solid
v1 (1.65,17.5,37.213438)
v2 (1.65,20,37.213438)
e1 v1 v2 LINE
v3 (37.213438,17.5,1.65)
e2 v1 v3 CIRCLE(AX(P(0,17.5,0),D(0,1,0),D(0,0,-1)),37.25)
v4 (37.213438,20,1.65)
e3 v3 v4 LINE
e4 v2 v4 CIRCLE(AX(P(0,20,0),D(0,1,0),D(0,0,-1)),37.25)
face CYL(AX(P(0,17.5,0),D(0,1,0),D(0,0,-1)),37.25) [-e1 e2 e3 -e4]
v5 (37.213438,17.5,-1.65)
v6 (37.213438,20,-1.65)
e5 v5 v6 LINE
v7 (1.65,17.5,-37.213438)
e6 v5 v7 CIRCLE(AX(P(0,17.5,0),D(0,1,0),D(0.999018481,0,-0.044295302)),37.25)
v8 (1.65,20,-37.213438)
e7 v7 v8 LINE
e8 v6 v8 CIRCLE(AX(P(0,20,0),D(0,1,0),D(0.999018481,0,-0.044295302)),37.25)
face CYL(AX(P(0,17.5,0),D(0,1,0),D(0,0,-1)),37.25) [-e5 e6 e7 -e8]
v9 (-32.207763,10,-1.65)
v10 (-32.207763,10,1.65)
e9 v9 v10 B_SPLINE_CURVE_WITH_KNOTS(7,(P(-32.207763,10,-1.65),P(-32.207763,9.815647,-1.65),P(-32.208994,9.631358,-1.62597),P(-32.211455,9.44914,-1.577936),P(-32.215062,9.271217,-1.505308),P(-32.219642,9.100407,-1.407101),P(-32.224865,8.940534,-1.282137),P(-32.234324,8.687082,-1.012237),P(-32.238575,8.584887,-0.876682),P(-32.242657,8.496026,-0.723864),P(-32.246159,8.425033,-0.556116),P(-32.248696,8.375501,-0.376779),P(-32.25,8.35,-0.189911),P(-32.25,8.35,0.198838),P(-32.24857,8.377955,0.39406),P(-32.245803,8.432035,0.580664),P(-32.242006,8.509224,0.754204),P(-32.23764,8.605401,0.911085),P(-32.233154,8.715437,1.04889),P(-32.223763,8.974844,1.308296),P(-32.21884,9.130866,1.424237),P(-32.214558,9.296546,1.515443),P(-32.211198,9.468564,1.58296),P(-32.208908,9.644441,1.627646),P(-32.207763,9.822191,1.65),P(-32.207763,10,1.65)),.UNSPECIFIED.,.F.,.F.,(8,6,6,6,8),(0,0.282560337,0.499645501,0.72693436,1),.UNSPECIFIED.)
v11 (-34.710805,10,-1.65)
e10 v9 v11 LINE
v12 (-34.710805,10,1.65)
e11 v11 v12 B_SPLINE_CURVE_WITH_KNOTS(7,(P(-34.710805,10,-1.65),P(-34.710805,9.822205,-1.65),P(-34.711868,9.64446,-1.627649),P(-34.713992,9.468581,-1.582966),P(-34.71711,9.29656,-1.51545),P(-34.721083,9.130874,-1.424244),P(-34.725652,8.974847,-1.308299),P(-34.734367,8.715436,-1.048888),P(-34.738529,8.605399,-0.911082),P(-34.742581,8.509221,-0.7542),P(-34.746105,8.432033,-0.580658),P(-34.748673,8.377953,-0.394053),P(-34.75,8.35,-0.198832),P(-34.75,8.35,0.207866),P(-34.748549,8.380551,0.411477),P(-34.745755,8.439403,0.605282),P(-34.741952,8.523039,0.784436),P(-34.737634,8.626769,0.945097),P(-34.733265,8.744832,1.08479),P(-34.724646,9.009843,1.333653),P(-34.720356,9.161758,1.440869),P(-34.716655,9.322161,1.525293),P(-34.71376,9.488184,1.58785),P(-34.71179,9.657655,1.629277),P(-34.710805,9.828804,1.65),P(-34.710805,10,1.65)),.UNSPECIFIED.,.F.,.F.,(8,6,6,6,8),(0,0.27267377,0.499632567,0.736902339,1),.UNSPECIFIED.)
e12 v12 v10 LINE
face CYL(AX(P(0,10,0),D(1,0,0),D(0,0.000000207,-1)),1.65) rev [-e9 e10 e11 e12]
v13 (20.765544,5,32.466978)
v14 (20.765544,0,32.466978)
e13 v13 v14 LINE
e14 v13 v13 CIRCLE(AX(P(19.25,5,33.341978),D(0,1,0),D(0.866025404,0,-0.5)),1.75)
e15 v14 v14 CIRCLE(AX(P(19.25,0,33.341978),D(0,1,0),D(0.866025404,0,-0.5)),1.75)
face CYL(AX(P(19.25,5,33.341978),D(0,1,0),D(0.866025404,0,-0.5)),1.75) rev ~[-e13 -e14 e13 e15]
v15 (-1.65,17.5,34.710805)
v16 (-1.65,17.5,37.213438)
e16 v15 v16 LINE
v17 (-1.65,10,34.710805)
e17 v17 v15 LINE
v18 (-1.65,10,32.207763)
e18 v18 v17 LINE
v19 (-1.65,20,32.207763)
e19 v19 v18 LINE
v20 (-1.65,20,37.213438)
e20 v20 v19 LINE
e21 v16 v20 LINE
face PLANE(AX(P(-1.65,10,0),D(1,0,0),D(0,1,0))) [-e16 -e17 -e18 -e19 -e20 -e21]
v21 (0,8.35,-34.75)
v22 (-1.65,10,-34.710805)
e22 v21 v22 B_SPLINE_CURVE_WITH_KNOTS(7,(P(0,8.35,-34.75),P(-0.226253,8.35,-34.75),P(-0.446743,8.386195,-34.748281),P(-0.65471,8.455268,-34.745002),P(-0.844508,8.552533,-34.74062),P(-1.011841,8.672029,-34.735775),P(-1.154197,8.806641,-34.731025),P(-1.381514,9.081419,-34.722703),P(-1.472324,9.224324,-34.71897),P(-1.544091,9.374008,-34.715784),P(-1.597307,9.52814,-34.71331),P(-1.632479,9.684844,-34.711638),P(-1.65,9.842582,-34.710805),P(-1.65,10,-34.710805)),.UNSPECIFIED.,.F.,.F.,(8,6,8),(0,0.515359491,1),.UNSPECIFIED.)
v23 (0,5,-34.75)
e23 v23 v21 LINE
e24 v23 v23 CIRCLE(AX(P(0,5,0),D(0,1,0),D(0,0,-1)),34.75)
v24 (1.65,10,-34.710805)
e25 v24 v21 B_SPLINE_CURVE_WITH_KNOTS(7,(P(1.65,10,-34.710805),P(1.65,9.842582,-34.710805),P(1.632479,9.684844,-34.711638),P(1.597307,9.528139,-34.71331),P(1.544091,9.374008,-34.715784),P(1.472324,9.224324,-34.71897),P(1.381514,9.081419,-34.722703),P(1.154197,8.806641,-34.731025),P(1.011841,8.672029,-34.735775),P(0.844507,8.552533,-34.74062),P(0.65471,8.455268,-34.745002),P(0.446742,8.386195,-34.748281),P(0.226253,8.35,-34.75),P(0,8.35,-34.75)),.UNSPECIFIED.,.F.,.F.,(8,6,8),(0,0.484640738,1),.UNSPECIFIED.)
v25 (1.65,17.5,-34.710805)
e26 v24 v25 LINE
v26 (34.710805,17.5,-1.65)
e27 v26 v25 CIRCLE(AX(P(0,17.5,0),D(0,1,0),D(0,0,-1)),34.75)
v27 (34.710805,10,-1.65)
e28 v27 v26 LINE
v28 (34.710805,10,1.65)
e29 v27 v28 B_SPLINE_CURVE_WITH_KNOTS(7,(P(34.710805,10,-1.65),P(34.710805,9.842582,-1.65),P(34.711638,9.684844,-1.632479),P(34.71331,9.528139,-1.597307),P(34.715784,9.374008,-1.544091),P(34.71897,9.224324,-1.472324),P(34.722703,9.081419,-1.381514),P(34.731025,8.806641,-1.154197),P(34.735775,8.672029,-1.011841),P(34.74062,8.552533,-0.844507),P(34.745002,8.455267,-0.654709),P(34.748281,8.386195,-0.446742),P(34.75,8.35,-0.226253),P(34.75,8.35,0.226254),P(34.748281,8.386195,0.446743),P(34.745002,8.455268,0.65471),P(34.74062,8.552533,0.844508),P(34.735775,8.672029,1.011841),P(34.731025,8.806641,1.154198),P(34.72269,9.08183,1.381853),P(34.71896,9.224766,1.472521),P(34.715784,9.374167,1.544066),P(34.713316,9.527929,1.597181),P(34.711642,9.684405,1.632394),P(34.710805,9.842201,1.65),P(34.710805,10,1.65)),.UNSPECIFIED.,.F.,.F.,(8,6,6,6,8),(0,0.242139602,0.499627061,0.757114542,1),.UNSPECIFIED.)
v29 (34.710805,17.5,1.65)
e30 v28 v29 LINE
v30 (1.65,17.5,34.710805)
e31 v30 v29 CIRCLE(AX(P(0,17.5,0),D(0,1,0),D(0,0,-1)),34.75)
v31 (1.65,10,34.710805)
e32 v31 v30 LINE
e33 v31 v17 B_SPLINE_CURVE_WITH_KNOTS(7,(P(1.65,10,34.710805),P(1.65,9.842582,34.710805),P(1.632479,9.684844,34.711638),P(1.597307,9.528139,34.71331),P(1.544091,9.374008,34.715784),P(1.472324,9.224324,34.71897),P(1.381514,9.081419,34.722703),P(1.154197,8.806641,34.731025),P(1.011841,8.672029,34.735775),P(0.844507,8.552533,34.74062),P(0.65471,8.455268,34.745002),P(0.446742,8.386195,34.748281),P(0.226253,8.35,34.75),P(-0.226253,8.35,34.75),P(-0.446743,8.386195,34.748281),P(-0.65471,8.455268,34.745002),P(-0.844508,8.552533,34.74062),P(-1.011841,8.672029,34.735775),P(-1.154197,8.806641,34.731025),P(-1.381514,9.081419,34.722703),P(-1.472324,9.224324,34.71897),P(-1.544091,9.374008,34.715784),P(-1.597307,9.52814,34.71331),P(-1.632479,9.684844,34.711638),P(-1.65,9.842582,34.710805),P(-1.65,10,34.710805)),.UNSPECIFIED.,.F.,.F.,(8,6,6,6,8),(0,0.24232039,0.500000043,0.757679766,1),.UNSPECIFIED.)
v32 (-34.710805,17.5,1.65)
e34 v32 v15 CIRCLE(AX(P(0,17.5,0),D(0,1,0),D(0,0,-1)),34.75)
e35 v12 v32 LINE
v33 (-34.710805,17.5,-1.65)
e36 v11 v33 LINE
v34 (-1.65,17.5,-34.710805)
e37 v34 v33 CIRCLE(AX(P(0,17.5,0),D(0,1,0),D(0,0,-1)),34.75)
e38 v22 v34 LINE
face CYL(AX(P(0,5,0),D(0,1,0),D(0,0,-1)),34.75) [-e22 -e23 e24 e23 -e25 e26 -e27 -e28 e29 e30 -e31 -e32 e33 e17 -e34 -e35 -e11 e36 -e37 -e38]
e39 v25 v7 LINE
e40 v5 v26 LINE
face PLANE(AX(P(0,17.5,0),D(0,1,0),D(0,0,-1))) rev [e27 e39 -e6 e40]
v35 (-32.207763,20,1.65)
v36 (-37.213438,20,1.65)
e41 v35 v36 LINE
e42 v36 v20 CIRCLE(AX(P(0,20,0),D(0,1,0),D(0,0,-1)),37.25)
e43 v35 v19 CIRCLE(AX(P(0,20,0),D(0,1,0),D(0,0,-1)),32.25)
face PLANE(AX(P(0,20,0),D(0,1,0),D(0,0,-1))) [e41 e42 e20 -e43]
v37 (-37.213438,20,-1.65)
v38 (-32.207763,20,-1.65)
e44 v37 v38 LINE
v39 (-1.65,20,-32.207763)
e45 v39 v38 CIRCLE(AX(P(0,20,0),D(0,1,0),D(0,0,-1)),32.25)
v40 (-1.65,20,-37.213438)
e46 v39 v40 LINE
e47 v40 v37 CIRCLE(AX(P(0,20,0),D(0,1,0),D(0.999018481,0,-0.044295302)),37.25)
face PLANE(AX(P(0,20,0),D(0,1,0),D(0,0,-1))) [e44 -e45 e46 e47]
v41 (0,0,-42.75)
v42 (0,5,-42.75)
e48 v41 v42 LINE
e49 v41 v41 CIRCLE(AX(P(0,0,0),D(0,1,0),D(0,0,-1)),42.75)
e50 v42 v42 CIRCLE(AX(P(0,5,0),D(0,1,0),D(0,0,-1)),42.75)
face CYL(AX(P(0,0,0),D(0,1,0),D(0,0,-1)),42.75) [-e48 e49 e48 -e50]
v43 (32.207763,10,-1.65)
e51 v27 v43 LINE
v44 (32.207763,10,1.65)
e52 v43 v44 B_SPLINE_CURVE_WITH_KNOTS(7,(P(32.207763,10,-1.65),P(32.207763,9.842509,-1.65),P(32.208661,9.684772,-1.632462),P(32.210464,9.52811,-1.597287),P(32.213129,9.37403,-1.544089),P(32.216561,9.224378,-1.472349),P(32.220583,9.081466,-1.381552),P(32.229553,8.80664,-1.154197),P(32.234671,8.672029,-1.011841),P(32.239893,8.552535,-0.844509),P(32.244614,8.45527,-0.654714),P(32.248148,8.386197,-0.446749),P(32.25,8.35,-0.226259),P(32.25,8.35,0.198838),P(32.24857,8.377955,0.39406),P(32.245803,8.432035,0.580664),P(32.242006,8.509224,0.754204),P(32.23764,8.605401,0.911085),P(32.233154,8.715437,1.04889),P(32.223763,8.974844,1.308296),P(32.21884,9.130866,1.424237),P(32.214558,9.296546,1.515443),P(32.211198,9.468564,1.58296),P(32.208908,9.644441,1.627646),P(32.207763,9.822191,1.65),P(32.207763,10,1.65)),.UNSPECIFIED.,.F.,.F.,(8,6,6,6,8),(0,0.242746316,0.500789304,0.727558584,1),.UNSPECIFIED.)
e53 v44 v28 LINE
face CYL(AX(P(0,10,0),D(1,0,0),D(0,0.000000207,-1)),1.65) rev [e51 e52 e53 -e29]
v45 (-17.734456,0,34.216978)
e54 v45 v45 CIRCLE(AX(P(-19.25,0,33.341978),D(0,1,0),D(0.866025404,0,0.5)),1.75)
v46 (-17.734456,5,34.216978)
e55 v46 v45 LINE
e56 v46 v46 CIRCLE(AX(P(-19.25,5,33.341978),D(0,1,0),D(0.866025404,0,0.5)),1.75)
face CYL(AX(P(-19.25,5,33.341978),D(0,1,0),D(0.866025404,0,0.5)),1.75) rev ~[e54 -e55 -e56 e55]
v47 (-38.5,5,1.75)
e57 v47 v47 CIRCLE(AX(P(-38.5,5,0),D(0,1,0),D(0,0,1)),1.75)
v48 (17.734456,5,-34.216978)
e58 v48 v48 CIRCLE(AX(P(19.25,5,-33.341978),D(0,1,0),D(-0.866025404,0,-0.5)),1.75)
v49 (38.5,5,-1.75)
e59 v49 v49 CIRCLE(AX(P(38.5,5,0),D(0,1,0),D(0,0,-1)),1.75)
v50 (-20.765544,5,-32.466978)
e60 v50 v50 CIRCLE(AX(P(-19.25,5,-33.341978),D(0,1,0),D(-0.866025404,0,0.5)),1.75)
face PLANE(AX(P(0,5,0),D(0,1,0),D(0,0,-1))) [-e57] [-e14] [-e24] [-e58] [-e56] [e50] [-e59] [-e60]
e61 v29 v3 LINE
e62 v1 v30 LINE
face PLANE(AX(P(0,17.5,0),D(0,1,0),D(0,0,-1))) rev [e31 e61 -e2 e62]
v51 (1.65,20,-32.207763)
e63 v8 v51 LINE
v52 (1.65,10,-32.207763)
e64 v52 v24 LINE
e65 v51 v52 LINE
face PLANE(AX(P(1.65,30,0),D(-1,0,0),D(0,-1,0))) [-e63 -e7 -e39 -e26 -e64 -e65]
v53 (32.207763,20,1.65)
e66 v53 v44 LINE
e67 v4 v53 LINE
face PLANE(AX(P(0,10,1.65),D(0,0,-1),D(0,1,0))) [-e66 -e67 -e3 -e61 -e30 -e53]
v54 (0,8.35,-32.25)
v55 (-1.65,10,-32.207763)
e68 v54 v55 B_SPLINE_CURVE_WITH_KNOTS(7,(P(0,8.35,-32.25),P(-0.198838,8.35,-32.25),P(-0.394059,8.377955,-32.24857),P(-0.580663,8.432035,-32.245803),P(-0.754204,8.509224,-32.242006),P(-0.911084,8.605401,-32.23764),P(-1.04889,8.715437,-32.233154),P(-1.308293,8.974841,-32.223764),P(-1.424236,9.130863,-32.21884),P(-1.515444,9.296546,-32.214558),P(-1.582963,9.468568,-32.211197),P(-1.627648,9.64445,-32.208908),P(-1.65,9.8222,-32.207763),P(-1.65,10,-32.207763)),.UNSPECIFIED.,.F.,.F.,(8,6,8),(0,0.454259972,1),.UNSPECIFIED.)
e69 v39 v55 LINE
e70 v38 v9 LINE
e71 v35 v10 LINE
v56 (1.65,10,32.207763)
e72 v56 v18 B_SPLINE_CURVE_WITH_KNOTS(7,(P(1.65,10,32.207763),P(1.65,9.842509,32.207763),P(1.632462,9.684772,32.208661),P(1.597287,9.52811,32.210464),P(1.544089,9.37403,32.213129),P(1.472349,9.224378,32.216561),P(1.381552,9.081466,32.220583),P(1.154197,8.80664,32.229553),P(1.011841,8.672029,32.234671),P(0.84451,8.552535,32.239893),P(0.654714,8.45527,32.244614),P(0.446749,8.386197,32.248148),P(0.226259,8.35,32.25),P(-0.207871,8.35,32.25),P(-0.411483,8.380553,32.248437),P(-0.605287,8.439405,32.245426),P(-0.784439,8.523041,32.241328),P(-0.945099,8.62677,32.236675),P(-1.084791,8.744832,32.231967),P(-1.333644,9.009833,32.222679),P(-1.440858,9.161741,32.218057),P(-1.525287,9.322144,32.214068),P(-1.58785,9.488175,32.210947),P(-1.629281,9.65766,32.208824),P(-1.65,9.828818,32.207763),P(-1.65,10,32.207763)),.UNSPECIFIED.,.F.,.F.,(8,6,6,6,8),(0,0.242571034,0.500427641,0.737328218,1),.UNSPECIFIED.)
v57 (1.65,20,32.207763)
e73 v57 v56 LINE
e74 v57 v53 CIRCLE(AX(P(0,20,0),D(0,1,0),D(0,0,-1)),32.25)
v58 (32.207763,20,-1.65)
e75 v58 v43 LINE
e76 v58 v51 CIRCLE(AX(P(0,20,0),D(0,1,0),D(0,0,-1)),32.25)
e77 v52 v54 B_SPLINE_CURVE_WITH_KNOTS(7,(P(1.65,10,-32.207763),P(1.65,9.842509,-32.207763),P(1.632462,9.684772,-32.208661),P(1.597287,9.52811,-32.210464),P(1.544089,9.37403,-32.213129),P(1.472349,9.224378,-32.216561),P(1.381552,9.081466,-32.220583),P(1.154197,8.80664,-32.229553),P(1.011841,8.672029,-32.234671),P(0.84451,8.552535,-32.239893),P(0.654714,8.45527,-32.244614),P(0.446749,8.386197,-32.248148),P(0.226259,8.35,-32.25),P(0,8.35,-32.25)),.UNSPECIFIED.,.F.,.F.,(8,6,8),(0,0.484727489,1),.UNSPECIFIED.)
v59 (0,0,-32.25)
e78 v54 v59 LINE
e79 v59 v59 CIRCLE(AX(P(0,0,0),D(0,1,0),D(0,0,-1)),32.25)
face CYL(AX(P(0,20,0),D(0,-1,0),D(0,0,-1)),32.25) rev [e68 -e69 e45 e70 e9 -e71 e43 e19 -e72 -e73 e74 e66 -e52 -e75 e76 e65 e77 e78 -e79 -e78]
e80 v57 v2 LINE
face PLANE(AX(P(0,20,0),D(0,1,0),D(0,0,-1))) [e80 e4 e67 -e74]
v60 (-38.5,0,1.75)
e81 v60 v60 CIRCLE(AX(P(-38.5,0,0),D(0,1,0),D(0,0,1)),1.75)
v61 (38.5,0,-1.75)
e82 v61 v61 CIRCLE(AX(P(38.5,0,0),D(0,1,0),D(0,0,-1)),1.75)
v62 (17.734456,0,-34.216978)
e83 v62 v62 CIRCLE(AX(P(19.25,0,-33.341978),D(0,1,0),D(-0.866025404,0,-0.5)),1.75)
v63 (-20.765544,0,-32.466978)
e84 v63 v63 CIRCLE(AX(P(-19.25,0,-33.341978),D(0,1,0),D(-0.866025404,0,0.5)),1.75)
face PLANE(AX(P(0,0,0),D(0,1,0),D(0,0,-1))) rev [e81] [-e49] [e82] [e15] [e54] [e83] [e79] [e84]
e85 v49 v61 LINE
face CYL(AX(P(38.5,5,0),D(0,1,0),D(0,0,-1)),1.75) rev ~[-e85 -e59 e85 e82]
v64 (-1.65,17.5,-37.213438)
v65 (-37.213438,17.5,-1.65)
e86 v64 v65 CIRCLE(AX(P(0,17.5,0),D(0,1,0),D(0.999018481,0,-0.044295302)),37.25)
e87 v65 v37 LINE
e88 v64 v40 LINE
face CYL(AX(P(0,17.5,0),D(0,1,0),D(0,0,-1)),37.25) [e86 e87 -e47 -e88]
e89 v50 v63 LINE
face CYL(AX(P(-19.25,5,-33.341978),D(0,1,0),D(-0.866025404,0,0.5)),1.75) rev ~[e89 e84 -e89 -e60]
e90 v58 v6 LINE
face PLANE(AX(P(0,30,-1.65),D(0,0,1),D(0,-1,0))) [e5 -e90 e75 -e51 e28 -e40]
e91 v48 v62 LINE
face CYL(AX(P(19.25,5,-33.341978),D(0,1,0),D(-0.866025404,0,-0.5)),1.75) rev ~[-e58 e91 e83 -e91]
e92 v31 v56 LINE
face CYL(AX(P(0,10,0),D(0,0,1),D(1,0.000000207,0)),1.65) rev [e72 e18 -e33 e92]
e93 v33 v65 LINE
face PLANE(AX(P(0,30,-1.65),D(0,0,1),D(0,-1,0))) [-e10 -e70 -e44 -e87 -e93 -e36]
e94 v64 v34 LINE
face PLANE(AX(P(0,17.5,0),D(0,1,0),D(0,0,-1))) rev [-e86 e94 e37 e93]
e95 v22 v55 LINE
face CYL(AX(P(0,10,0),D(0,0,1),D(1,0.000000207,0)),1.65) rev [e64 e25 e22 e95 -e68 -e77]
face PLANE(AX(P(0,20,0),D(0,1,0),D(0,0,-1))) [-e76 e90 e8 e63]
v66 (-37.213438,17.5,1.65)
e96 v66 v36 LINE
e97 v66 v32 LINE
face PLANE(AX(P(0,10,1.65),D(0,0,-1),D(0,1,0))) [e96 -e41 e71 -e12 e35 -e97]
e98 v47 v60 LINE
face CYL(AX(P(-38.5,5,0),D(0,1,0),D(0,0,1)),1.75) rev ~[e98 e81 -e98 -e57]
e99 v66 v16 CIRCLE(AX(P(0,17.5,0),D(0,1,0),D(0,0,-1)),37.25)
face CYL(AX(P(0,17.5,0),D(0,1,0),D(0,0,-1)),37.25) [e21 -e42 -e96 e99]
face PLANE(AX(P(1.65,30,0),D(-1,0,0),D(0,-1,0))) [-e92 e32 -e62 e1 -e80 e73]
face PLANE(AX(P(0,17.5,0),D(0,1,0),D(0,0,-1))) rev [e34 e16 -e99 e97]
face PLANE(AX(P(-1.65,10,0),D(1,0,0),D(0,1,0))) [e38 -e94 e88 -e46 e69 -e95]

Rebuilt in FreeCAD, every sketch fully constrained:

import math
import FreeCAD as App
import Part
import Sketcher

V = App.Vector

doc = App.newDocument("Part")
body = doc.addObject("PartDesign::Body", "Body")

sketch1 = body.newObject("Sketcher::SketchObject", "Sketch")
sketch1.AttachmentSupport = (doc.getObject("XY_Plane"), [""])
sketch1.MapMode = "FlatFace"
sketch1.addGeometry([
    Part.LineSegment(V(-32.2, 0, 0), V(-32.2, 20, 0)),
    Part.LineSegment(V(-32.2, 20, 0), V(-37.2, 20, 0)),
    Part.LineSegment(V(-37.2, 20, 0), V(-37.2, 17.5, 0)),
    Part.LineSegment(V(-37.2, 17.5, 0), V(-34.8, 17.5, 0)),
    Part.LineSegment(V(-34.8, 17.5, 0), V(-34.8, 5, 0)),
    Part.LineSegment(V(-34.8, 5, 0), V(-42.8, 5, 0)),
    Part.LineSegment(V(-42.8, 5, 0), V(-42.8, 0, 0)),
    Part.LineSegment(V(-42.8, 0, 0), V(-32.2, 0, 0)),
], False)
sketch1.addConstraint([
    Sketcher.Constraint("Coincident", 0, 2, 1, 1),
    Sketcher.Constraint("Coincident", 1, 2, 2, 1),
    Sketcher.Constraint("Coincident", 2, 2, 3, 1),
    Sketcher.Constraint("Coincident", 3, 2, 4, 1),
    Sketcher.Constraint("Coincident", 4, 2, 5, 1),
    Sketcher.Constraint("Coincident", 5, 2, 6, 1),
    Sketcher.Constraint("Coincident", 6, 2, 7, 1),
    Sketcher.Constraint("Coincident", 7, 2, 0, 1),
    Sketcher.Constraint("Vertical", 0),
    Sketcher.Constraint("Horizontal", 1),
    Sketcher.Constraint("Vertical", 2),
    Sketcher.Constraint("Horizontal", 3),
    Sketcher.Constraint("Vertical", 4),
    Sketcher.Constraint("Horizontal", 5),
    Sketcher.Constraint("Vertical", 6),
    Sketcher.Constraint("Horizontal", 7),
    Sketcher.Constraint("PointOnObject", 6, 2, -1),
    Sketcher.Constraint("Equal", 3, 2),
    Sketcher.Constraint("Equal", 1, 6),
    Sketcher.Constraint("DistanceX", 1, 2, 1, 1, 5.0),
    Sketcher.Constraint("DistanceX", 5, 2, 5, 1, 8.0),
    Sketcher.Constraint("DistanceY", 0, 1, 0, 2, 20.0),
    Sketcher.Constraint("DistanceX", 3, 1, 3, 2, 2.5),
    Sketcher.Constraint("DistanceX", 0, 2, -1, 1, 32.25),
])
revolution = body.newObject("PartDesign::Revolution", "Revolution")
revolution.Profile = sketch1
revolution.ReferenceAxis = (sketch1, ["V_Axis"])
revolution.Angle = 360

sketch2 = body.newObject("Sketcher::SketchObject", "Sketch001")
sketch2.AttachmentSupport = (doc.getObject("YZ_Plane"), [""])
sketch2.MapMode = "FlatFace"
sketch2.addGeometry([
    Part.LineSegment(V(30, -1.6, 0), V(30, 1.6, 0)),
    Part.LineSegment(V(30, 1.6, 0), V(10, 1.6, 0)),
    Part.ArcOfCircle(Part.Circle(V(10, 0, 0), V(0, 0, 1), 1.6), math.radians(90), math.radians(270)),
    Part.LineSegment(V(10, -1.6, 0), V(30, -1.6, 0)),
], False)
sketch2.addConstraint([
    Sketcher.Constraint("Coincident", 0, 2, 1, 1),
    Sketcher.Constraint("Tangent", 1, 2, 2, 1),
    Sketcher.Constraint("Tangent", 2, 2, 3, 1),
    Sketcher.Constraint("Coincident", 3, 2, 0, 1),
    Sketcher.Constraint("Vertical", 0),
    Sketcher.Constraint("Horizontal", 1),
    Sketcher.Constraint("Horizontal", 3),
    Sketcher.Constraint("PointOnObject", 2, 3, -1),
    Sketcher.Constraint("DistanceX", 1, 2, 1, 1, 19.999999),
    Sketcher.Constraint("Radius", 2, 1.65),
    Sketcher.Constraint("DistanceX", -1, 1, 2, 3, 10.0),
])
pocket1 = body.newObject("PartDesign::Pocket", "Pocket")
pocket1.Profile = sketch2
pocket1.Length = 129.359727
pocket1.Midplane = True
doc.recompute()

polarpattern = body.newObject("PartDesign::PolarPattern", "PolarPattern")
polarpattern.Originals = [pocket1]
polarpattern.Axis = (doc.getObject("Y_Axis"), [""])
polarpattern.Angle = 360
polarpattern.Occurrences = 4
body.Tip = polarpattern

sketch3 = body.newObject("Sketcher::SketchObject", "Sketch002")
sketch3.AttachmentSupport = (doc.getObject("XZ_Plane"), [""])
sketch3.MapMode = "FlatFace"
sketch3.AttachmentOffset = App.Placement(V(0, 0, -5), App.Rotation())
sketch3.addGeometry(Part.Circle(V(-38.5, 0, 0), V(0, 0, 1), 1.8), False)
sketch3.addConstraint([
    Sketcher.Constraint("PointOnObject", 0, 3, -1),
    Sketcher.Constraint("Diameter", 0, 3.5),
    Sketcher.Constraint("DistanceX", 0, 3, -1, 1, 38.5),
])
pocket2 = body.newObject("PartDesign::Pocket", "Pocket001")
pocket2.Profile = sketch3
pocket2.Length = 10
pocket2.Reversed = True
doc.recompute()

polarpattern2 = body.newObject("PartDesign::PolarPattern", "PolarPattern001")
polarpattern2.Originals = [pocket2]
polarpattern2.Axis = (doc.getObject("Y_Axis"), [""])
polarpattern2.Angle = 360
polarpattern2.Occurrences = 6
body.Tip = polarpattern2

doc.recompute()
